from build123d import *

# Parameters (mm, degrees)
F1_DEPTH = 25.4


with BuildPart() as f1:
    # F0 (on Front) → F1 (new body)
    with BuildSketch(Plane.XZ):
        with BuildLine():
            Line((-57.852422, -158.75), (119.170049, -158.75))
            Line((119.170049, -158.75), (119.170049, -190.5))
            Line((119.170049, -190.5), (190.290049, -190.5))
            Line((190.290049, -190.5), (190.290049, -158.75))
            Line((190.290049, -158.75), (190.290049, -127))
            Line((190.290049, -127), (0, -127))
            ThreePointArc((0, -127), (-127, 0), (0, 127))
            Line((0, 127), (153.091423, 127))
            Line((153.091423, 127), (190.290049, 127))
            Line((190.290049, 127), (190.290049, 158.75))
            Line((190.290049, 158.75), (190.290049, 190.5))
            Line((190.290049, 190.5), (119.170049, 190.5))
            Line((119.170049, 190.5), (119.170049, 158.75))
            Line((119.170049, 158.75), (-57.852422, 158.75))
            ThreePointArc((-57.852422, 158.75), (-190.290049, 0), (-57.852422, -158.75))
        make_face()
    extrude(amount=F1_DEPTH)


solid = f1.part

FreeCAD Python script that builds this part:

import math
import FreeCAD as App
import Part
import Sketcher
Q = App.Units.Quantity

doc = App.newDocument("Part")
params = doc.addObject("Spreadsheet::Sheet", "Params")
for row, (alias, value) in enumerate([
    ("sketch1_radius", "5 in"),
    ("sketch1_width", "2.8 in"),
    ("sketch1_height", "2.5 in"),
    ("sketch1_height2", "1.25 in"),
    ("pad1_length", "1 in"),
], start=1):
    params.set(f"A{row}", alias)
    params.set(f"B{row}", "=" + value)
    params.setAlias(f"B{row}", alias)

body = doc.addObject("PartDesign::Body", "Body")

sketch1 = body.newObject("Sketcher::SketchObject", "Sketch")
sketch1.AttachmentSupport = (doc.getObject("XZ_Plane"), [""])
sketch1.MapMode = "FlatFace"
sketch1.addGeometry(Part.LineSegment(App.Vector(-58, -159, 0), App.Vector(119, -159, 0)), False)
sketch1.addGeometry(Part.LineSegment(App.Vector(119, -159, 0), App.Vector(119, -190, 0)), False)
sketch1.addGeometry(Part.LineSegment(App.Vector(119, -190, 0), App.Vector(190, -190, 0)), False)
sketch1.addGeometry(Part.LineSegment(App.Vector(190, -190, 0), App.Vector(190, -127, 0)), False)
sketch1.addGeometry(Part.LineSegment(App.Vector(190, -127, 0), App.Vector(0, -127, 0)), False)
sketch1.addGeometry(Part.ArcOfCircle(Part.Circle(App.Vector(0, 0, 0), App.Vector(0, 0, 1), 127), math.radians(90), math.radians(270)), False)
sketch1.addGeometry(Part.LineSegment(App.Vector(0, 127, 0), App.Vector(190, 127, 0)), False)
sketch1.addGeometry(Part.LineSegment(App.Vector(190, 127, 0), App.Vector(190, 190, 0)), False)
sketch1.addGeometry(Part.LineSegment(App.Vector(190, 190, 0), App.Vector(119, 190, 0)), False)
sketch1.addGeometry(Part.LineSegment(App.Vector(119, 190, 0), App.Vector(119, 159, 0)), False)
sketch1.addGeometry(Part.LineSegment(App.Vector(119, 159, 0), App.Vector(-58, 159, 0)), False)
sketch1.addGeometry(Part.ArcOfCircle(Part.Circle(App.Vector(-29, 0, 0), App.Vector(0, 0, 1), 161), math.radians(100), math.radians(260)), False)
sketch1.addConstraint(Sketcher.Constraint("Coincident", 0, 2, 1, 1))
sketch1.addConstraint(Sketcher.Constraint("Coincident", 1, 2, 2, 1))
sketch1.addConstraint(Sketcher.Constraint("Coincident", 2, 2, 3, 1))
sketch1.addConstraint(Sketcher.Constraint("Coincident", 3, 2, 4, 1))
sketch1.addConstraint(Sketcher.Constraint("Tangent", 4, 2, 5, 2))
sketch1.addConstraint(Sketcher.Constraint("Tangent", 5, 1, 6, 1))
sketch1.addConstraint(Sketcher.Constraint("Coincident", 6, 2, 7, 1))
sketch1.addConstraint(Sketcher.Constraint("Coincident", 7, 2, 8, 1))
sketch1.addConstraint(Sketcher.Constraint("Coincident", 8, 2, 9, 1))
sketch1.addConstraint(Sketcher.Constraint("Coincident", 9, 2, 10, 1))
sketch1.addConstraint(Sketcher.Constraint("Coincident", 10, 2, 11, 1))
sketch1.addConstraint(Sketcher.Constraint("Coincident", 11, 2, 0, 1))
sketch1.addConstraint(Sketcher.Constraint("Horizontal", 0))
sketch1.addConstraint(Sketcher.Constraint("Vertical", 1))
sketch1.addConstraint(Sketcher.Constraint("Horizontal", 2))
sketch1.addConstraint(Sketcher.Constraint("Vertical", 3))
sketch1.addConstraint(Sketcher.Constraint("Horizontal", 4))
sketch1.addConstraint(Sketcher.Constraint("Horizontal", 6))
sketch1.addConstraint(Sketcher.Constraint("Vertical", 7))
sketch1.addConstraint(Sketcher.Constraint("Horizontal", 8))
sketch1.addConstraint(Sketcher.Constraint("Vertical", 9))
sketch1.addConstraint(Sketcher.Constraint("Horizontal", 10))
sketch1.addConstraint(Sketcher.Constraint("Coincident", 5, 3, -1, 1))
sketch1.addConstraint(Sketcher.Constraint("Symmetric", 2, 2, 7, 2, -1))
sketch1.addConstraint(Sketcher.Constraint("Symmetric", 0, 2, 9, 2, -1))
sketch1.addConstraint(Sketcher.Constraint("PointOnObject", 11, 3, -1))
sketch1.addConstraint(Sketcher.Constraint("Radius", 5, Q("5 in")))
sketch1.addConstraint(Sketcher.Constraint("DistanceX", 2, 1, 2, 2, Q("2.8 in")))
sketch1.addConstraint(Sketcher.Constraint("DistanceY", 3, 1, 3, 2, Q("2.5 in")))
sketch1.addConstraint(Sketcher.Constraint("DistanceY", 1, 2, 1, 1, Q("1.25 in")))
sketch1.addConstraint(Sketcher.Constraint("Radius", 11, 161.363838))
sketch1.addConstraint(Sketcher.Constraint("DistanceX", 0, 1, 0, 2, 177.022471))
sketch1.addConstraint(Sketcher.Constraint("DistanceX", 4, 2, 4, 1, 190.290049))
sketch1.setExpression("Constraints[26]", "Params.sketch1_radius")
sketch1.setExpression("Constraints[27]", "Params.sketch1_width")
sketch1.setExpression("Constraints[28]", "Params.sketch1_height")
sketch1.setExpression("Constraints[29]", "Params.sketch1_height2")
pad1 = body.newObject("PartDesign::Pad", "Pad")
pad1.Profile = sketch1
pad1.setExpression("Length", "Params.pad1_length")

doc.recompute()
